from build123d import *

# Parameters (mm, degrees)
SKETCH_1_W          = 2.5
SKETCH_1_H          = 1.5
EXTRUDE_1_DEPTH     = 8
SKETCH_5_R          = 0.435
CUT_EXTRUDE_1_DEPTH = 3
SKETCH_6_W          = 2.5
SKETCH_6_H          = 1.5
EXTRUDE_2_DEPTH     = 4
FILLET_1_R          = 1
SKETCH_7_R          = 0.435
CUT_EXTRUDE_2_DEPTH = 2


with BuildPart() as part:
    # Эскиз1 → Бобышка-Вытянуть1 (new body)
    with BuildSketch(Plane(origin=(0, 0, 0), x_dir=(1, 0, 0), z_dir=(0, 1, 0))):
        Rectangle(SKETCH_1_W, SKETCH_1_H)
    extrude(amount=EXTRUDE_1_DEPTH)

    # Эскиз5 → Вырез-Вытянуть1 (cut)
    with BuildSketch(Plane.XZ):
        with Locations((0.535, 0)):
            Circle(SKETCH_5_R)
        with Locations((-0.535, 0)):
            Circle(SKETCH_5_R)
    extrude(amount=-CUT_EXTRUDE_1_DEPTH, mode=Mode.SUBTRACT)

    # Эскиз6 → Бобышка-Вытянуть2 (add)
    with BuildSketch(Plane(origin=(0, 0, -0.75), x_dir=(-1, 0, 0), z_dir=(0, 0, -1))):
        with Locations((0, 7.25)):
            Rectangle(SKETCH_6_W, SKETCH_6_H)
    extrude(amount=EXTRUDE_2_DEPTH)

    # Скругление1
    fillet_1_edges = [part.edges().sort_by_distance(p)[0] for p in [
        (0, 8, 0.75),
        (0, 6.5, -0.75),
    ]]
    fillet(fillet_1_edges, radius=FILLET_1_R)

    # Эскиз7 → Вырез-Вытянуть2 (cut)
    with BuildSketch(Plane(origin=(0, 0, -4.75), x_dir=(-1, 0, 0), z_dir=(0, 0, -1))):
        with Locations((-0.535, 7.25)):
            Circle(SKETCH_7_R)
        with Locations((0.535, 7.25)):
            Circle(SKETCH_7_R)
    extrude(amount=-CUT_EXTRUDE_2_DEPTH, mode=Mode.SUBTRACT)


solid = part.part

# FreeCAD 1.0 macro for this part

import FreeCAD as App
import Part
import Sketcher
Q = App.Units.Quantity


def edges_at(feature, points):
    """Names of the edges that pass closest to the given points."""
    edges = feature.Shape.Edges
    near = lambda p: min(range(len(edges)), key=lambda i: edges[i].distToShape(Part.Vertex(*p))[0])
    return sorted({f"Edge{near(p) + 1}" for p in points})


def add_polygon(sketch, points):
    """Adds a closed chain of lines whose ends are joined by coincident constraints."""
    first, n = sketch.GeometryCount, len(points)
    for a, b in zip(points, points[1:] + points[:1]):
        sketch.addGeometry(Part.LineSegment(App.Vector(*a, 0), App.Vector(*b, 0)), False)
    for i in range(n):
        sketch.addConstraint(Sketcher.Constraint("Coincident", first + i, 2, first + (i + 1) % n, 1))

doc = App.newDocument("Part")
body = doc.addObject("PartDesign::Body", "Body")

sketch1 = body.newObject("Sketcher::SketchObject", "Sketch")
sketch1.AttachmentSupport = (doc.getObject("XZ_Plane"), [""])
sketch1.MapMode = "FlatFace"
add_polygon(sketch1, [(-1.2, -0.8), (-1.2, 0.8), (1.2, 0.8), (1.2, -0.8)])
sketch1.addConstraint(Sketcher.Constraint("Vertical", 0))
sketch1.addConstraint(Sketcher.Constraint("Horizontal", 1))
sketch1.addConstraint(Sketcher.Constraint("Vertical", 2))
sketch1.addConstraint(Sketcher.Constraint("Horizontal", 3))
sketch1.addConstraint(Sketcher.Constraint("Symmetric", 0, 2, 2, 2, -1, 1))
sketch1.addConstraint(Sketcher.Constraint("DistanceX", 1, 1, 1, 2, Q("2.5 mm")))
sketch1.addConstraint(Sketcher.Constraint("DistanceY", 0, 1, 0, 2, Q("1.5 mm")))
pad1 = body.newObject("PartDesign::Pad", "Pad")
pad1.Profile = sketch1
pad1.Length = 8
pad1.Reversed = True

sketch2 = body.newObject("Sketcher::SketchObject", "Sketch001")
sketch2.AttachmentSupport = (doc.getObject("XZ_Plane"), [""])
sketch2.MapMode = "FlatFace"
sketch2.addGeometry(Part.Circle(App.Vector(0.54, 0, 0), App.Vector(0, 0, 1), 0.43), False)
sketch2.addGeometry(Part.Circle(App.Vector(-0.54, 0, 0), App.Vector(0, 0, 1), 0.43), False)
sketch2.addConstraint(Sketcher.Constraint("Equal", 0, 1))
sketch2.addConstraint(Sketcher.Constraint("Symmetric", 0, 3, 1, 3, -1, 1))
sketch2.addConstraint(Sketcher.Constraint("PointOnObject", 0, 3, -1))
sketch2.addConstraint(Sketcher.Constraint("Diameter", 0, Q("0.87 mm")))
sketch2.addConstraint(Sketcher.Constraint("DistanceX", 1, 3, 0, 3, Q("1.07 mm")))
pocket1 = body.newObject("PartDesign::Pocket", "Pocket")
pocket1.Profile = sketch2
pocket1.Length = 3

sketch3 = body.newObject("Sketcher::SketchObject", "Sketch002")
sketch3.AttachmentSupport = (doc.getObject("XY_Plane"), [""])
sketch3.MapMode = "FlatFace"
sketch3.AttachmentOffset = App.Placement(App.Vector(0, 0, -0.75), App.Rotation())
add_polygon(sketch3, [(1.2, 8), (1.2, 6.5), (-1.2, 6.5), (-1.2, 8)])
sketch3.addConstraint(Sketcher.Constraint("Vertical", 0))
sketch3.addConstraint(Sketcher.Constraint("Horizontal", 1))
sketch3.addConstraint(Sketcher.Constraint("Vertical", 2))
sketch3.addConstraint(Sketcher.Constraint("Horizontal", 3))
sketch3.addConstraint(Sketcher.Constraint("DistanceX", 1, 2, 1, 1, Q("2.5 mm")))
sketch3.addConstraint(Sketcher.Constraint("DistanceY", 0, 2, 0, 1, Q("1.5 mm")))
sketch3.addConstraint(Sketcher.Constraint("DistanceY", -1, 1, 2, 2, Q("8 mm")))
sketch3.addConstraint(Sketcher.Constraint("DistanceX", -1, 1, 0, 2, Q("1.25 mm")))
pad2 = body.newObject("PartDesign::Pad", "Pad001")
pad2.Profile = sketch3
pad2.Length = 4
pad2.Reversed = True
doc.recompute()

fillet = body.newObject("PartDesign::Fillet", "Fillet")
fillet.Base = (pad2, edges_at(pad2, [(0, 8, 0.75), (0, 6.5, -0.75)]))
fillet.Radius = 1

sketch4 = body.newObject("Sketcher::SketchObject", "Sketch003")
sketch4.AttachmentSupport = (doc.getObject("XY_Plane"), [""])
sketch4.MapMode = "FlatFace"
sketch4.AttachmentOffset = App.Placement(App.Vector(0, 0, -4.75), App.Rotation())
sketch4.addGeometry(Part.Circle(App.Vector(0.54, 7.25, 0), App.Vector(0, 0, 1), 0.43), False)
sketch4.addGeometry(Part.Circle(App.Vector(-0.54, 7.25, 0), App.Vector(0, 0, 1), 0.43), False)
sketch4.addConstraint(Sketcher.Constraint("Equal", 0, 1))
sketch4.addConstraint(Sketcher.Constraint("Symmetric", 0, 3, 1, 3, -2))
sketch4.addConstraint(Sketcher.Constraint("Diameter", 0, Q("0.87 mm")))
sketch4.addConstraint(Sketcher.Constraint("DistanceY", -1, 1, 0, 3, Q("7.25 mm")))
sketch4.addConstraint(Sketcher.Constraint("DistanceX", 1, 3, 0, 3, Q("1.07 mm")))
pocket2 = body.newObject("PartDesign::Pocket", "Pocket001")
pocket2.Profile = sketch4
pocket2.Length = 2
pocket2.Reversed = True

doc.recompute()
